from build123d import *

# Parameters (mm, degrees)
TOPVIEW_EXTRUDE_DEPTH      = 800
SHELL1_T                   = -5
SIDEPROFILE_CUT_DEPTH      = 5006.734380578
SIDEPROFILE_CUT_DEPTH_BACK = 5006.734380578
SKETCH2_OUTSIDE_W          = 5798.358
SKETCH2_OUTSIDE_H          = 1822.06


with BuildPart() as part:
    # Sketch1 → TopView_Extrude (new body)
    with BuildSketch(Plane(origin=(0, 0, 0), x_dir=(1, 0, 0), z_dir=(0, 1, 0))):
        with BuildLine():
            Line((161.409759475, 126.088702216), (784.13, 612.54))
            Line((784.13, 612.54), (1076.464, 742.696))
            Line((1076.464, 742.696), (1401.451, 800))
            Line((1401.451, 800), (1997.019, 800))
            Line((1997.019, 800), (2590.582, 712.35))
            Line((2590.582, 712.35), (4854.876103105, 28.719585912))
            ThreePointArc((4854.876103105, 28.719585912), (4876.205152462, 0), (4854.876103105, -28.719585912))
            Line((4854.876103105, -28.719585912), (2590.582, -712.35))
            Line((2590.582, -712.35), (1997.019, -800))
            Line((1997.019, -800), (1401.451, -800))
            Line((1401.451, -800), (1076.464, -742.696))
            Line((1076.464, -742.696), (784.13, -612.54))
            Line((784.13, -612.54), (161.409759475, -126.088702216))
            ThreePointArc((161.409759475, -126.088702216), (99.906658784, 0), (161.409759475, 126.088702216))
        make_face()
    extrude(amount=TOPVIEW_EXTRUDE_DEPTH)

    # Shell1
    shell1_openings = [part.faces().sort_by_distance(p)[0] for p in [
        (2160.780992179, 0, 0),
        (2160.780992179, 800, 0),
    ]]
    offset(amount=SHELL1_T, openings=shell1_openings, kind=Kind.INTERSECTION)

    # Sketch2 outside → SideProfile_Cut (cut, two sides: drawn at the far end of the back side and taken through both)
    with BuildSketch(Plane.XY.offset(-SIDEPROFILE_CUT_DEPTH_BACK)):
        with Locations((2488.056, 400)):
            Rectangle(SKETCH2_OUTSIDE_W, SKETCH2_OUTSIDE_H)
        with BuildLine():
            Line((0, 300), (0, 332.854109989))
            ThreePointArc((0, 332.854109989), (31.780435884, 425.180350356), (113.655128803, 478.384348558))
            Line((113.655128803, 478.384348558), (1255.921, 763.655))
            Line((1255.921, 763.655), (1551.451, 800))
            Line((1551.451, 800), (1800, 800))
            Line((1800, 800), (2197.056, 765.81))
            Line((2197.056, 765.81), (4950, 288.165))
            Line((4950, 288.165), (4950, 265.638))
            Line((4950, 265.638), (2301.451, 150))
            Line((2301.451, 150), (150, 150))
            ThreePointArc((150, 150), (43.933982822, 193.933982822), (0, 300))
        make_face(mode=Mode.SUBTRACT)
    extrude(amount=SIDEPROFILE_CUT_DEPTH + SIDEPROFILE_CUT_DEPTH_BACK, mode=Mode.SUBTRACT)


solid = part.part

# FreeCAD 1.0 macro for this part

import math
import FreeCAD as App
import Part
import Sketcher

V = App.Vector
Q = App.Units.Quantity


def faces_at(feature, points):
    """Names of the faces that lie closest to the given points."""
    faces = feature.Shape.Faces
    near = lambda p: min(range(len(faces)), key=lambda i: faces[i].distToShape(Part.Vertex(*p))[0])
    return sorted({f"Face{near(p) + 1}" for p in points})


def add_polygon(sketch, points):
    """Adds a closed chain of lines whose ends are joined by coincident constraints."""
    first, n = sketch.GeometryCount, len(points)
    for a, b in zip(points, points[1:] + points[:1]):
        sketch.addGeometry(Part.LineSegment(App.Vector(*a, 0), App.Vector(*b, 0)), False)
    for i in range(n):
        sketch.addConstraint(Sketcher.Constraint("Coincident", first + i, 2, first + (i + 1) % n, 1))

doc = App.newDocument("Part")
body = doc.addObject("PartDesign::Body", "Body")

# Sketch on XZ plane
sketch1 = body.newObject("Sketcher::SketchObject", "Sketch")
sketch1.AttachmentSupport = (doc.getObject("XZ_Plane"), [""])
sketch1.MapMode = "FlatFace"
sketch1.addGeometry([
    Part.LineSegment(V(784.13, -612.54, 0), V(161.409759, -126.088702, 0)),  # 0
    Part.ArcOfCircle(Part.Circle(V(259.906659, 0, 0), V(0, 0, 1), 160), math.radians(127.995939), math.radians(232.004061)),  # 1
    Part.LineSegment(V(161.409759, 126.088702, 0), V(784.13, 612.54, 0)),  # 2
    Part.LineSegment(V(784.13, 612.54, 0), V(1076.464, 742.696, 0)),  # 3
    Part.LineSegment(V(1076.464, 742.696, 0), V(1401.451, 800, 0)),  # 4
    Part.LineSegment(V(1401.451, 800, 0), V(1997.019, 800, 0)),  # 5
    Part.LineSegment(V(1997.019, 800, 0), V(2590.582, 712.35, 0)),  # 6
    Part.LineSegment(V(2590.582, 712.35, 0), V(4854.876103, 28.719586, 0)),  # 7
    Part.ArcOfCircle(Part.Circle(V(4846.205152, 0, 0), V(0, 0, 1), 30), math.radians(-73.200007), math.radians(73.200007)),  # 8
    Part.LineSegment(V(4854.876103, -28.719586, 0), V(2590.582, -712.35, 0)),  # 9
    Part.LineSegment(V(2590.582, -712.35, 0), V(1997.019, -800, 0)),  # 10
    Part.LineSegment(V(1997.019, -800, 0), V(1401.451, -800, 0)),  # 11
    Part.LineSegment(V(1401.451, -800, 0), V(1076.464, -742.696, 0)),  # 12
    Part.LineSegment(V(1076.464, -742.696, 0), V(784.13, -612.54, 0)),  # 13
], False)
sketch1.addConstraint([
    Sketcher.Constraint("Coincident", 0, 2, 1, 2),
    Sketcher.Constraint("Coincident", 1, 1, 2, 1),
    Sketcher.Constraint("Coincident", 2, 2, 3, 1),
    Sketcher.Constraint("Coincident", 3, 2, 4, 1),
    Sketcher.Constraint("Coincident", 4, 2, 5, 1),
    Sketcher.Constraint("Coincident", 5, 2, 6, 1),
    Sketcher.Constraint("Coincident", 6, 2, 7, 1),
    Sketcher.Constraint("Coincident", 7, 2, 8, 2),
    Sketcher.Constraint("Coincident", 8, 1, 9, 1),
    Sketcher.Constraint("Coincident", 9, 2, 10, 1),
    Sketcher.Constraint("Coincident", 10, 2, 11, 1),
    Sketcher.Constraint("Coincident", 11, 2, 12, 1),
    Sketcher.Constraint("Coincident", 12, 2, 13, 1),
    Sketcher.Constraint("Coincident", 13, 2, 0, 1),
    Sketcher.Constraint("Horizontal", 5),
    Sketcher.Constraint("Horizontal", 11),
    Sketcher.Constraint("PointOnObject", 1, 3, -1),
    Sketcher.Constraint("PointOnObject", 8, 3, -1),
    Sketcher.Constraint("Radius", 1, 160.0),
    Sketcher.Constraint("Radius", 8, 30.0),
    Sketcher.Constraint("DistanceY", -1, 1, 4, 2, 800.0),
    Sketcher.Constraint("DistanceY", 10, 2, -1, 1, 800.0),
    Sketcher.Constraint("DistanceY", 9, 2, 6, 2, 1424.7),
    Sketcher.Constraint("DistanceX", 5, 1, 5, 2, 595.568),
    Sketcher.Constraint("DistanceX", 11, 2, 11, 1, 595.568),
    Sketcher.Constraint("DistanceX", -1, 1, 2, 2, 784.13),
    Sketcher.Constraint("DistanceY", -1, 1, 2, 2, 612.54),
    Sketcher.Constraint("DistanceY", -1, 1, 6, 2, 712.35),
    Sketcher.Constraint("DistanceX", -1, 1, 13, 2, 784.13),
    Sketcher.Constraint("DistanceY", 13, 2, -1, 1, 612.54),
    Sketcher.Constraint("DistanceX", -1, 1, 3, 2, 1076.464),
    Sketcher.Constraint("DistanceY", -1, 1, 3, 2, 742.696),
    Sketcher.Constraint("DistanceX", -1, 1, 4, 2, 1401.451),
    Sketcher.Constraint("DistanceX", -1, 1, 6, 2, 2590.582),
    Sketcher.Constraint("DistanceX", -1, 1, 9, 2, 2590.582),
    Sketcher.Constraint("DistanceX", -1, 1, 10, 2, 1997.019),
    Sketcher.Constraint("DistanceX", -1, 1, 12, 2, 1076.464),
    Sketcher.Constraint("DistanceY", 12, 2, -1, 1, 742.696),
    Sketcher.Constraint("DistanceX", 0, 2, 1, 3, 98.496899),
    Sketcher.Constraint("DistanceX", 1, 1, 1, 3, 98.496899),
    Sketcher.Constraint("Distance", 0, 790.199572),
    Sketcher.Constraint("Distance", 7, 2365.24382),
    Sketcher.Constraint("Distance", 9, 2365.24382),
    Sketcher.Constraint("DistanceX", 8, 3, 7, 2, 8.670951),
])
pad1 = body.newObject("PartDesign::Pad", "Pad")
pad1.Profile = sketch1
pad1.Length = 800
pad1.Reversed = True
doc.recompute()

thickness = body.newObject("PartDesign::Thickness", "Thickness")
thickness.Base = (pad1, faces_at(pad1, [(2488.056, 0, 0), (2488.056, 800, 0)]))
thickness.Value = 5
thickness.Reversed = True
thickness.Join = "Intersection"

# Sketch on XY plane
sketch2 = body.newObject("Sketcher::SketchObject", "Sketch001")
sketch2.AttachmentSupport = (doc.getObject("XY_Plane"), [""])
sketch2.MapMode = "FlatFace"
add_polygon(sketch2, [(-411, 1311), (-411, -511), (5387, -511), (5387, 1311)])  # lines 0-3
sketch2.addGeometry(Part.ArcOfCircle(Part.Circle(V(150, 300, 0), V(0, 0, 1), 150), math.radians(180), math.radians(270)), False)  # 4
sketch2.addGeometry(Part.LineSegment(V(0, 300, 0), V(0, 333, 0)), False)  # 5
sketch2.addGeometry(Part.ArcOfCircle(Part.Circle(V(150, 333, 0), V(0, 0, 1), 150), math.radians(104), math.radians(180)), False)  # 6
sketch2.addGeometry(Part.LineSegment(V(114, 478, 0), V(1256, 764, 0)), False)  # 7
sketch2.addGeometry(Part.LineSegment(V(1256, 764, 0), V(1551, 800, 0)), False)  # 8
sketch2.addGeometry(Part.LineSegment(V(1551, 800, 0), V(1800, 800, 0)), False)  # 9
sketch2.addGeometry(Part.LineSegment(V(1800, 800, 0), V(2197, 766, 0)), False)  # 10
sketch2.addGeometry(Part.LineSegment(V(2197, 766, 0), V(4950, 288, 0)), False)  # 11
sketch2.addGeometry(Part.LineSegment(V(4950, 288, 0), V(4950, 266, 0)), False)  # 12
sketch2.addGeometry(Part.LineSegment(V(4950, 266, 0), V(2301, 150, 0)), False)  # 13
sketch2.addGeometry(Part.LineSegment(V(2301, 150, 0), V(150, 150, 0)), False)  # 14
sketch2.addConstraint([
    Sketcher.Constraint("Tangent", 4, 1, 5, 1),
    Sketcher.Constraint("Tangent", 5, 2, 6, 2),
    Sketcher.Constraint("Tangent", 6, 1, 7, 1),
    Sketcher.Constraint("Coincident", 7, 2, 8, 1),
    Sketcher.Constraint("Coincident", 8, 2, 9, 1),
    Sketcher.Constraint("Coincident", 9, 2, 10, 1),
    Sketcher.Constraint("Coincident", 10, 2, 11, 1),
    Sketcher.Constraint("Coincident", 11, 2, 12, 1),
    Sketcher.Constraint("Coincident", 12, 2, 13, 1),
    Sketcher.Constraint("Coincident", 13, 2, 14, 1),
    Sketcher.Constraint("Tangent", 14, 2, 4, 2),
    Sketcher.Constraint("Vertical", 0),
    Sketcher.Constraint("Horizontal", 1),
    Sketcher.Constraint("Vertical", 2),
    Sketcher.Constraint("Horizontal", 3),
    Sketcher.Constraint("Vertical", 5),
    Sketcher.Constraint("Horizontal", 9),
    Sketcher.Constraint("Vertical", 12),
    Sketcher.Constraint("Horizontal", 14),
    Sketcher.Constraint("Equal", 4, 6),
    Sketcher.Constraint("PointOnObject", 4, 1, -2),
    Sketcher.Constraint("Radius", 4, 150.0),
    Sketcher.Constraint("DistanceY", -1, 1, 4, 3, 300.0),
    Sketcher.Constraint("DistanceY", -1, 1, 8, 2, 800.0),
    Sketcher.Constraint("DistanceX", -1, 1, 9, 2, 1800.0),
    Sketcher.Constraint("DistanceX", -1, 1, 11, 2, 4950.0),
    Sketcher.Constraint("Angle", 13, Q("-177.500003 deg")),
    Sketcher.Constraint("DistanceX", 8, 2, 13, 2, 750.0),
    Sketcher.Constraint("DistanceY", 0, 2, 0, 1, 1822.06),
    Sketcher.Constraint("DistanceX", 1, 1, 1, 2, 5798.358),
    Sketcher.Constraint("DistanceX", 9, 1, 9, 2, 248.549),
    Sketcher.Constraint("DistanceY", 12, 2, 12, 1, 22.527),
    Sketcher.Constraint("DistanceY", 0, 2, -1, 1, 511.03),
    Sketcher.Constraint("DistanceY", -1, 1, 10, 2, 765.81),
    Sketcher.Constraint("DistanceX", 7, 2, 8, 2, 295.53),
    Sketcher.Constraint("Distance", 7, 1177.348999),
    Sketcher.Constraint("DistanceX", 0, 2, -1, 1, 411.123),
    Sketcher.Constraint("DistanceY", -1, 1, 7, 2, 763.655),
    Sketcher.Constraint("DistanceX", -1, 1, 10, 2, 2197.056),
])
pocket1 = body.newObject("PartDesign::Pocket", "Pocket")
pocket1.Profile = sketch2
pocket1.Type = "ThroughAll"
pocket1.Midplane = True

doc.recompute()
